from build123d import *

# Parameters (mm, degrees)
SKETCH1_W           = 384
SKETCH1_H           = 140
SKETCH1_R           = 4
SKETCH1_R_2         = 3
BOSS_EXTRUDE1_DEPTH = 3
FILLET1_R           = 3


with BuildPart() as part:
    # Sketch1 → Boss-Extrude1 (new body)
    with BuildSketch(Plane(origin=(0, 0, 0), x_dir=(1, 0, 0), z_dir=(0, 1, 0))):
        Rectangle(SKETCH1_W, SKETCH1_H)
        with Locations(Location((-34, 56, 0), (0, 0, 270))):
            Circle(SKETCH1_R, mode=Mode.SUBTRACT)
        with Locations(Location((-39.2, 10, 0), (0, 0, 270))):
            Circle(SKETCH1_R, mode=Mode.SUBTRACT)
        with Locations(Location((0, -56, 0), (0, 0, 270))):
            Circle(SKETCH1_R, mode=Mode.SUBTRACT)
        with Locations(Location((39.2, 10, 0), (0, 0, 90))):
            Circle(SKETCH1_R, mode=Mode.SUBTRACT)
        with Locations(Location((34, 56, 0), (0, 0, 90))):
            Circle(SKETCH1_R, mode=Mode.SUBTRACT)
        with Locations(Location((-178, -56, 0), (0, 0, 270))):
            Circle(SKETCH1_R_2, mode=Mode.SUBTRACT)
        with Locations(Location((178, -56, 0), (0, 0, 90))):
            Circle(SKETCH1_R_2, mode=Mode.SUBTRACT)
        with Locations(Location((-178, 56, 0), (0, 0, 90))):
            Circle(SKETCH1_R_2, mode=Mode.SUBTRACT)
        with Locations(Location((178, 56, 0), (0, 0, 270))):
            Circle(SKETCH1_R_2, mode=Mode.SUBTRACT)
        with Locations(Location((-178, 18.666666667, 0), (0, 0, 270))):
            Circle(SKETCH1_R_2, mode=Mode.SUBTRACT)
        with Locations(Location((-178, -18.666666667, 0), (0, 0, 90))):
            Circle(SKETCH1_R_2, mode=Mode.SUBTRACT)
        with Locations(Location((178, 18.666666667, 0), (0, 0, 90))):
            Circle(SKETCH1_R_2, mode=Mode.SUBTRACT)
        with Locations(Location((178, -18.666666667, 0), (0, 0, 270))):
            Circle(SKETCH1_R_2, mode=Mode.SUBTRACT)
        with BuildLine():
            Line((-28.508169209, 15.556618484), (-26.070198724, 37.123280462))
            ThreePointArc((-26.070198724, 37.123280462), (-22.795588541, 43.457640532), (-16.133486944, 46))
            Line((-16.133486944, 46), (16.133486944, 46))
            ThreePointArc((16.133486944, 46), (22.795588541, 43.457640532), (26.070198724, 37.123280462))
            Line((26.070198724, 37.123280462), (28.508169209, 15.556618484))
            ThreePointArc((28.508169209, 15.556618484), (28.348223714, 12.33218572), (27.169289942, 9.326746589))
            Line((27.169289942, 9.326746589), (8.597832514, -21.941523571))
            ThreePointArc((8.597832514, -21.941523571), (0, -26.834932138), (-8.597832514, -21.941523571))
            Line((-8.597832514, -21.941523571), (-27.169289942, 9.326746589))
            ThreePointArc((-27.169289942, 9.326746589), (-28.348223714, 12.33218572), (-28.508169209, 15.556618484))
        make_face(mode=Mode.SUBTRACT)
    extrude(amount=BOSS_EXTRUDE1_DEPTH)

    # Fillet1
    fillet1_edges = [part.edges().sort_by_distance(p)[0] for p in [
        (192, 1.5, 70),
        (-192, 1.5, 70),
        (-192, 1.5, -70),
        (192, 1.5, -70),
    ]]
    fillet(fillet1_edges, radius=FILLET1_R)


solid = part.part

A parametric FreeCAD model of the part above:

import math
import FreeCAD as App
import Part
import Sketcher

V = App.Vector


def edges_at(feature, points):
    """Names of the edges that pass closest to the given points."""
    edges = feature.Shape.Edges
    near = lambda p: min(range(len(edges)), key=lambda i: edges[i].distToShape(Part.Vertex(*p))[0])
    return sorted({f"Edge{near(p) + 1}" for p in points})

doc = App.newDocument("Part")
body = doc.addObject("PartDesign::Body", "Body")

# Sketch on XZ plane
sketch1 = body.newObject("Sketcher::SketchObject", "Sketch")
sketch1.AttachmentSupport = (doc.getObject("XZ_Plane"), [""])
sketch1.MapMode = "FlatFace"
sketch1.addGeometry(Part.LineSegment(V(-192, -70, 0), V(-192, 70, 0)), False)
sketch1.addGeometry(Part.LineSegment(V(-192, 70, 0), V(192, 70, 0)), False)
sketch1.addGeometry(Part.LineSegment(V(192, 70, 0), V(192, -70, 0)), False)
sketch1.addGeometry(Part.LineSegment(V(192, -70, 0), V(-192, -70, 0)), False)
sketch1.addGeometry(Part.Circle(V(-178, 56, 0), V(0, 0, 1), 3), False)
sketch1.addGeometry(Part.Circle(V(-178, 18.7, 0), V(0, 0, 1), 3), False)
sketch1.addGeometry(Part.Circle(V(0, 56, 0), V(0, 0, 1), 4), False)
sketch1.addGeometry(Part.Circle(V(178, 56, 0), V(0, 0, 1), 3), False)
sketch1.addGeometry(Part.Circle(V(178, 18.7, 0), V(0, 0, 1), 3), False)
sketch1.addGeometry(Part.Circle(V(-178, -18.7, 0), V(0, 0, 1), 3), False)
sketch1.addGeometry(Part.Circle(V(-39.2, -10, 0), V(0, 0, 1), 4), False)
sketch1.addGeometry(Part.Circle(V(-178, -56, 0), V(0, 0, 1), 3), False)
sketch1.addGeometry(Part.Circle(V(-34, -56, 0), V(0, 0, 1), 4), False)
sketch1.addGeometry(Part.ArcOfCircle(Part.Circle(V(-18.6, -14.4, 0), V(0, 0, 1), 10), math.radians(149), math.radians(186)), False)
sketch1.addGeometry(Part.LineSegment(V(-28.5, -15.6, 0), V(-26.1, -37.1, 0)), False)
sketch1.addGeometry(Part.ArcOfCircle(Part.Circle(V(-16.1, -36, 0), V(0, 0, 1), 10), math.radians(-174), math.radians(-90)), False)
sketch1.addGeometry(Part.LineSegment(V(-16.1, -46, 0), V(16.1, -46, 0)), False)
sketch1.addGeometry(Part.ArcOfCircle(Part.Circle(V(16.1, -36, 0), V(0, 0, 1), 10), math.radians(-90), math.radians(-6)), False)
sketch1.addGeometry(Part.LineSegment(V(26.1, -37.1, 0), V(28.5, -15.6, 0)), False)
sketch1.addGeometry(Part.ArcOfCircle(Part.Circle(V(18.6, -14.4, 0), V(0, 0, 1), 10), math.radians(-6), math.radians(31)), False)
sketch1.addGeometry(Part.LineSegment(V(27.2, -9.3, 0), V(8.6, 21.9, 0)), False)
sketch1.addGeometry(Part.ArcOfCircle(Part.Circle(V(0, 16.8, 0), V(0, 0, 1), 10), math.radians(31), math.radians(149)), False)
sketch1.addGeometry(Part.LineSegment(V(-8.6, 21.9, 0), V(-27.2, -9.3, 0)), False)
sketch1.addGeometry(Part.Circle(V(39.2, -10, 0), V(0, 0, 1), 4), False)
sketch1.addGeometry(Part.Circle(V(178, -18.7, 0), V(0, 0, 1), 3), False)
sketch1.addGeometry(Part.Circle(V(34, -56, 0), V(0, 0, 1), 4), False)
sketch1.addGeometry(Part.Circle(V(178, -56, 0), V(0, 0, 1), 3), False)
sketch1.addConstraint(Sketcher.Constraint("Coincident", 0, 2, 1, 1))
sketch1.addConstraint(Sketcher.Constraint("Coincident", 1, 2, 2, 1))
sketch1.addConstraint(Sketcher.Constraint("Coincident", 2, 2, 3, 1))
sketch1.addConstraint(Sketcher.Constraint("Coincident", 3, 2, 0, 1))
sketch1.addConstraint(Sketcher.Constraint("Tangent", 13, 2, 14, 1))
sketch1.addConstraint(Sketcher.Constraint("Tangent", 14, 2, 15, 1))
sketch1.addConstraint(Sketcher.Constraint("Tangent", 15, 2, 16, 1))
sketch1.addConstraint(Sketcher.Constraint("Tangent", 16, 2, 17, 1))
sketch1.addConstraint(Sketcher.Constraint("Tangent", 17, 2, 18, 1))
sketch1.addConstraint(Sketcher.Constraint("Tangent", 18, 2, 19, 1))
sketch1.addConstraint(Sketcher.Constraint("Tangent", 19, 2, 20, 1))
sketch1.addConstraint(Sketcher.Constraint("Tangent", 20, 2, 21, 1))
sketch1.addConstraint(Sketcher.Constraint("Tangent", 21, 2, 22, 1))
sketch1.addConstraint(Sketcher.Constraint("Tangent", 22, 2, 13, 1))
sketch1.addConstraint(Sketcher.Constraint("Vertical", 0))
sketch1.addConstraint(Sketcher.Constraint("Horizontal", 1))
sketch1.addConstraint(Sketcher.Constraint("Vertical", 2))
sketch1.addConstraint(Sketcher.Constraint("Horizontal", 3))
sketch1.addConstraint(Sketcher.Constraint("Horizontal", 16))
sketch1.addConstraint(Sketcher.Constraint("Equal", 4, 5))
sketch1.addConstraint(Sketcher.Constraint("Equal", 5, 7))
sketch1.addConstraint(Sketcher.Constraint("Equal", 7, 8))
sketch1.addConstraint(Sketcher.Constraint("Equal", 8, 9))
sketch1.addConstraint(Sketcher.Constraint("Equal", 6, 10))
sketch1.addConstraint(Sketcher.Constraint("Equal", 9, 11))
sketch1.addConstraint(Sketcher.Constraint("Equal", 10, 12))
sketch1.addConstraint(Sketcher.Constraint("Equal", 13, 15))
sketch1.addConstraint(Sketcher.Constraint("Equal", 15, 17))
sketch1.addConstraint(Sketcher.Constraint("Equal", 17, 19))
sketch1.addConstraint(Sketcher.Constraint("Equal", 19, 21))
sketch1.addConstraint(Sketcher.Constraint("Equal", 12, 23))
sketch1.addConstraint(Sketcher.Constraint("Equal", 11, 24))
sketch1.addConstraint(Sketcher.Constraint("Equal", 23, 25))
sketch1.addConstraint(Sketcher.Constraint("Equal", 24, 26))
sketch1.addConstraint(Sketcher.Constraint("Symmetric", 8, 3, 9, 3, -1, 1))
sketch1.addConstraint(Sketcher.Constraint("Symmetric", 7, 3, 11, 3, -1, 1))
sketch1.addConstraint(Sketcher.Constraint("Symmetric", 5, 3, 24, 3, -1, 1))
sketch1.addConstraint(Sketcher.Constraint("Symmetric", 4, 3, 26, 3, -1, 1))
sketch1.addConstraint(Sketcher.Constraint("Symmetric", 0, 2, 2, 2, -1, 1))
sketch1.addConstraint(Sketcher.Constraint("Symmetric", 4, 3, 7, 3, -2))
sketch1.addConstraint(Sketcher.Constraint("Symmetric", 5, 3, 8, 3, -2))
sketch1.addConstraint(Sketcher.Constraint("Symmetric", 13, 3, 19, 3, -2))
sketch1.addConstraint(Sketcher.Constraint("Symmetric", 10, 3, 23, 3, -2))
sketch1.addConstraint(Sketcher.Constraint("Symmetric", 12, 3, 25, 3, -2))
sketch1.addConstraint(Sketcher.Constraint("PointOnObject", 6, 3, -2))
sketch1.addConstraint(Sketcher.Constraint("PointOnObject", 21, 3, -2))
sketch1.addConstraint(Sketcher.Constraint("Horizontal", 4, 3, 6, 3))
sketch1.addConstraint(Sketcher.Constraint("Horizontal", 11, 3, 12, 3))
sketch1.addConstraint(Sketcher.Constraint("Horizontal", 14, 2, 17, 2))
sketch1.addConstraint(Sketcher.Constraint("Vertical", 4, 3, 5, 3))
sketch1.addConstraint(Sketcher.Constraint("Diameter", 4, 6.0))
sketch1.addConstraint(Sketcher.Constraint("Diameter", 6, 8.0))
sketch1.addConstraint(Sketcher.Constraint("Radius", 13, 10.0))
sketch1.addConstraint(Sketcher.Constraint("DistanceX", 1, 1, 1, 2, 384.0))
sketch1.addConstraint(Sketcher.Constraint("DistanceY", 0, 1, 0, 2, 140.0))
sketch1.addConstraint(Sketcher.Constraint("DistanceX", 4, 3, -1, 1, 178.0))
sketch1.addConstraint(Sketcher.Constraint("DistanceY", -1, 1, 4, 3, 56.0))
sketch1.addConstraint(Sketcher.Constraint("DistanceY", 10, 3, -1, 1, 10.0))
sketch1.addConstraint(Sketcher.Constraint("DistanceX", 12, 3, -1, 1, 34.0))
sketch1.addConstraint(Sketcher.Constraint("DistanceY", 15, 3, -1, 1, 36.0))
sketch1.addConstraint(Sketcher.Constraint("DistanceX", 10, 3, -1, 1, 39.2))
sketch1.addConstraint(Sketcher.Constraint("DistanceX", 14, 2, -1, 1, 26.070199))
sketch1.addConstraint(Sketcher.Constraint("Distance", 20, 36.36762))
sketch1.addConstraint(Sketcher.Constraint("DistanceX", 16, 1, 16, 2, 32.266974))
sketch1.addConstraint(Sketcher.Constraint("DistanceY", 13, 3, -1, 1, 14.433338))
sketch1.addConstraint(Sketcher.Constraint("DistanceY", 9, 3, 13, 3, 4.233329))
pad1 = body.newObject("PartDesign::Pad", "Pad")
pad1.Profile = sketch1
pad1.Length = 3
pad1.Reversed = True
doc.recompute()

fillet = body.newObject("PartDesign::Fillet", "Fillet")
fillet.Base = (pad1, edges_at(pad1, [
    (192, 1.5, 70),
    (-192, 1.5, 70),
    (-192, 1.5, -70),
    (192, 1.5, -70),
]))
fillet.Radius = 3

doc.recompute()
